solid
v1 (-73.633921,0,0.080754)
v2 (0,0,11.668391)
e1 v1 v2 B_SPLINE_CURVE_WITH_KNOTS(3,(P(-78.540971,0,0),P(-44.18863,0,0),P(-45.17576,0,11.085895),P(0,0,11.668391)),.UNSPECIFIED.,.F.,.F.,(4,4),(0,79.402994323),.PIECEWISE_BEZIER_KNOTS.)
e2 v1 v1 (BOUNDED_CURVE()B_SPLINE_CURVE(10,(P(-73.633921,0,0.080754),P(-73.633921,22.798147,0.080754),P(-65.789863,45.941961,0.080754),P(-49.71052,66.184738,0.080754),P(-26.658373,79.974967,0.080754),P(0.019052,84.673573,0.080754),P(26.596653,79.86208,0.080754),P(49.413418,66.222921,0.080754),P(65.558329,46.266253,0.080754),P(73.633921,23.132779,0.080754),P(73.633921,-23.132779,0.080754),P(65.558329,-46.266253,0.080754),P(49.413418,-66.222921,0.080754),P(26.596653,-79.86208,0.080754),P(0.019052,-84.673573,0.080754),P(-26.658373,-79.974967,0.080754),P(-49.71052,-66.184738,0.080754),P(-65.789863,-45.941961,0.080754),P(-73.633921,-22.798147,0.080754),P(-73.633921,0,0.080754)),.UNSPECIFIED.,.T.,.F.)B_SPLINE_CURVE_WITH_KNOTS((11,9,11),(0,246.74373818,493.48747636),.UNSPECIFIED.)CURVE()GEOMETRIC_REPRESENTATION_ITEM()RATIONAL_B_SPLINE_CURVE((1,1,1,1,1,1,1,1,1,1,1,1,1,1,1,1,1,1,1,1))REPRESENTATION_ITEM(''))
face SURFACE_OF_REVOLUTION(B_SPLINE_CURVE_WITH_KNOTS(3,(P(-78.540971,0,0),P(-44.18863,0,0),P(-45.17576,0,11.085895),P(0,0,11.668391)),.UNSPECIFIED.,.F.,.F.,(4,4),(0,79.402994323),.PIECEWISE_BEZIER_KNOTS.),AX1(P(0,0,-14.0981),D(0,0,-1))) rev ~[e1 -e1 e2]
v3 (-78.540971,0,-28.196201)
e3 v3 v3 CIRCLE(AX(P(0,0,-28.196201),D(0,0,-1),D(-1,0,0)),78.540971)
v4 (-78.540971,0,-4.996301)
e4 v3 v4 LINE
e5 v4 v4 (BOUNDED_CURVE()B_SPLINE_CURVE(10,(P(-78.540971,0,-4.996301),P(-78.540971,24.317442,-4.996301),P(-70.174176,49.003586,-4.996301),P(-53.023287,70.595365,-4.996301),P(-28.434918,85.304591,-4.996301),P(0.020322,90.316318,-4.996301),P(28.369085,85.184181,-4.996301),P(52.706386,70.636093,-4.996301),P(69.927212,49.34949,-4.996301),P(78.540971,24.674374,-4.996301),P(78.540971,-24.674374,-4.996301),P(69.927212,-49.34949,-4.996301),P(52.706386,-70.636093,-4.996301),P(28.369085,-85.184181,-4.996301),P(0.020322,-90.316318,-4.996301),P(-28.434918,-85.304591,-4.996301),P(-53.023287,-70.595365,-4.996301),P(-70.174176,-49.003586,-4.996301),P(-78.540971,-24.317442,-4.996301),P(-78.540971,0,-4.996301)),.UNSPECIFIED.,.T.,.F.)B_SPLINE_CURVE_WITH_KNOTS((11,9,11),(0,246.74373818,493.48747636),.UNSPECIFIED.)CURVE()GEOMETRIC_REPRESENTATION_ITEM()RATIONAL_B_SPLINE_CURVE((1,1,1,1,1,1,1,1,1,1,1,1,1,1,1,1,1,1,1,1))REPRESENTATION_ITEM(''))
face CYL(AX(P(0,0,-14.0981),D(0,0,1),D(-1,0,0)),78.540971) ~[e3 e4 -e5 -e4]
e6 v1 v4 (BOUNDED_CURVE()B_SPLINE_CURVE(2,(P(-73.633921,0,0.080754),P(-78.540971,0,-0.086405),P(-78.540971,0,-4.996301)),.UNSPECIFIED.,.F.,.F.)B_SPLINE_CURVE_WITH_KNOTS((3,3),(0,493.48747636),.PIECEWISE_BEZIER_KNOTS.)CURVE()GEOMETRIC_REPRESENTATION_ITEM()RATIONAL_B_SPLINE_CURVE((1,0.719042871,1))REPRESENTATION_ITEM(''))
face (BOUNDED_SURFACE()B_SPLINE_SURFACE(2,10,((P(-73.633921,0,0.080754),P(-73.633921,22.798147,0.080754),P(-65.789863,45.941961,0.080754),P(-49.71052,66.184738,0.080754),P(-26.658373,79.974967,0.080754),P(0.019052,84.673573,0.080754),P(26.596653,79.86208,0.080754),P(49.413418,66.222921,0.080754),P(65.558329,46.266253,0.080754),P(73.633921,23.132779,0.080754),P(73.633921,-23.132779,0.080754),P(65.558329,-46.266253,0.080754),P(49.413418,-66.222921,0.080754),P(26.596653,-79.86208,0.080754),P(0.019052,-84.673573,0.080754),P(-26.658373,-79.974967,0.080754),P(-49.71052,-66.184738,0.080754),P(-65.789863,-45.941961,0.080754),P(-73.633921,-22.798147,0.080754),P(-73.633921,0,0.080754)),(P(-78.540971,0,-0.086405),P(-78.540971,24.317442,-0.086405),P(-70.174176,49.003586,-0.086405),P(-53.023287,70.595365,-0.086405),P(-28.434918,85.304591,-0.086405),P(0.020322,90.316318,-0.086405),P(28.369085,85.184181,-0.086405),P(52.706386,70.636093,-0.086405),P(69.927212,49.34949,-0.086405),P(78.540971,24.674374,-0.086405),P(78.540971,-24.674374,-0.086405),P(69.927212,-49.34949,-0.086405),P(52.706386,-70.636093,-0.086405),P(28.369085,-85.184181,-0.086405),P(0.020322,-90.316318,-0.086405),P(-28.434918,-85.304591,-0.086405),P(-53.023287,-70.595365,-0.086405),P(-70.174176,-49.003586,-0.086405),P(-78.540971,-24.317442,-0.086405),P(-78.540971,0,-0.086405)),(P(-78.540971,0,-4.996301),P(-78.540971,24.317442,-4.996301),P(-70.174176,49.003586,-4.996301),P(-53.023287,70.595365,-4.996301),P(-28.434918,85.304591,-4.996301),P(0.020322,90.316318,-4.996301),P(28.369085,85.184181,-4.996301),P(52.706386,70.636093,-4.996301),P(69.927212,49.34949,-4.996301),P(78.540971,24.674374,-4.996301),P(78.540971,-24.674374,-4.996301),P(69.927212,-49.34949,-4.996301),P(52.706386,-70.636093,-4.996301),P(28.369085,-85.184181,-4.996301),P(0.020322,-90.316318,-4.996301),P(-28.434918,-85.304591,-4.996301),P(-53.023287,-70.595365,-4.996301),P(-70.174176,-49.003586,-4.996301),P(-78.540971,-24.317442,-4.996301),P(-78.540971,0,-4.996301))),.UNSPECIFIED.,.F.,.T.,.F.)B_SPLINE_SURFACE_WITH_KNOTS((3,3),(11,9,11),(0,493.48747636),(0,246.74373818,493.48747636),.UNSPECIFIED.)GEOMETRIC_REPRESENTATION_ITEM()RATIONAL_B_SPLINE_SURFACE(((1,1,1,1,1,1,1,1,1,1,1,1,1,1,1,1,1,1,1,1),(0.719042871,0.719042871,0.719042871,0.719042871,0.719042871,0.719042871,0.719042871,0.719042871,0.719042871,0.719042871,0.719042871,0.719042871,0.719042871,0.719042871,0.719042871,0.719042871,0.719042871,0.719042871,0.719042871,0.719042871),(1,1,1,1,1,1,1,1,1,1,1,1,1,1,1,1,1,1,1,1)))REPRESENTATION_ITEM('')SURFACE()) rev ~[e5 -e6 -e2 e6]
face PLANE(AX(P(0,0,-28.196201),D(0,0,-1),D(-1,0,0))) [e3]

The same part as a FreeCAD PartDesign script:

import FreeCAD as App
import Part
import Sketcher
Q = App.Units.Quantity


def edges_at(feature, points):
    """Names of the edges that pass closest to the given points."""
    edges = feature.Shape.Edges
    near = lambda p: min(range(len(edges)), key=lambda i: edges[i].distToShape(Part.Vertex(*p))[0])
    return sorted({f"Edge{near(p) + 1}" for p in points})

doc = App.newDocument("Part")
body = doc.addObject("PartDesign::Body", "Body")

sketch1 = doc.addObject("Sketcher::SketchObject", "Sketch")
body.addObject(sketch1)
sketch1.AttachmentSupport = (doc.XZ_Plane, [""])
sketch1.MapMode = "FlatFace"
sketch1.addGeometry(Part.BSplineCurve([App.Vector(-78.540971, 0, 0), App.Vector(-44.18863, 0, 0), App.Vector(-45.17576, 11.085895, 0), App.Vector(0, 11.668391, 0)], [4, 4], [0, 79.402994323], False, 3, [1, 1, 1, 1], False), False)
sketch1.addGeometry(Part.LineSegment(App.Vector(-78.540971, 0, 0), App.Vector(-78.540971, -28.196201, 0)), False)
sketch1.addGeometry(Part.LineSegment(App.Vector(-78.540971, -28.196201, 0), App.Vector(0, -28.196201, 0)), False)
sketch1.addGeometry(Part.LineSegment(App.Vector(0, -28.196201, 0), App.Vector(0, 11.668391, 0)), False)
sketch1.addConstraint(Sketcher.Constraint("Block", 0))
sketch1.addConstraint(Sketcher.Constraint("Coincident", 0, 1, 1, 1))
sketch1.addConstraint(Sketcher.Constraint("Coincident", 1, 2, 2, 1))
sketch1.addConstraint(Sketcher.Constraint("Coincident", 2, 2, 3, 1))
sketch1.addConstraint(Sketcher.Constraint("Coincident", 3, 2, 0, 2))
sketch1.addConstraint(Sketcher.Constraint("Vertical", 1))
sketch1.addConstraint(Sketcher.Constraint("Horizontal", 2))
sketch1.addConstraint(Sketcher.Constraint("Vertical", 3))
sketch1.addConstraint(Sketcher.Constraint("DistanceY", 1, 2, 1, 1, Q("28.196201 mm")))
revolution = doc.addObject("PartDesign::Revolution", "Revolution")
body.addObject(revolution)
revolution.Profile = sketch1
revolution.ReferenceAxis = (sketch1, ["V_Axis"])
revolution.Angle = 360
doc.recompute()

fillet = doc.addObject("PartDesign::Fillet", "Fillet")
body.addObject(fillet)
fillet.Base = (revolution, edges_at(revolution, [(78.541, 0, 0)]))
fillet.Radius = Q("0.2 in")

doc.recompute()
